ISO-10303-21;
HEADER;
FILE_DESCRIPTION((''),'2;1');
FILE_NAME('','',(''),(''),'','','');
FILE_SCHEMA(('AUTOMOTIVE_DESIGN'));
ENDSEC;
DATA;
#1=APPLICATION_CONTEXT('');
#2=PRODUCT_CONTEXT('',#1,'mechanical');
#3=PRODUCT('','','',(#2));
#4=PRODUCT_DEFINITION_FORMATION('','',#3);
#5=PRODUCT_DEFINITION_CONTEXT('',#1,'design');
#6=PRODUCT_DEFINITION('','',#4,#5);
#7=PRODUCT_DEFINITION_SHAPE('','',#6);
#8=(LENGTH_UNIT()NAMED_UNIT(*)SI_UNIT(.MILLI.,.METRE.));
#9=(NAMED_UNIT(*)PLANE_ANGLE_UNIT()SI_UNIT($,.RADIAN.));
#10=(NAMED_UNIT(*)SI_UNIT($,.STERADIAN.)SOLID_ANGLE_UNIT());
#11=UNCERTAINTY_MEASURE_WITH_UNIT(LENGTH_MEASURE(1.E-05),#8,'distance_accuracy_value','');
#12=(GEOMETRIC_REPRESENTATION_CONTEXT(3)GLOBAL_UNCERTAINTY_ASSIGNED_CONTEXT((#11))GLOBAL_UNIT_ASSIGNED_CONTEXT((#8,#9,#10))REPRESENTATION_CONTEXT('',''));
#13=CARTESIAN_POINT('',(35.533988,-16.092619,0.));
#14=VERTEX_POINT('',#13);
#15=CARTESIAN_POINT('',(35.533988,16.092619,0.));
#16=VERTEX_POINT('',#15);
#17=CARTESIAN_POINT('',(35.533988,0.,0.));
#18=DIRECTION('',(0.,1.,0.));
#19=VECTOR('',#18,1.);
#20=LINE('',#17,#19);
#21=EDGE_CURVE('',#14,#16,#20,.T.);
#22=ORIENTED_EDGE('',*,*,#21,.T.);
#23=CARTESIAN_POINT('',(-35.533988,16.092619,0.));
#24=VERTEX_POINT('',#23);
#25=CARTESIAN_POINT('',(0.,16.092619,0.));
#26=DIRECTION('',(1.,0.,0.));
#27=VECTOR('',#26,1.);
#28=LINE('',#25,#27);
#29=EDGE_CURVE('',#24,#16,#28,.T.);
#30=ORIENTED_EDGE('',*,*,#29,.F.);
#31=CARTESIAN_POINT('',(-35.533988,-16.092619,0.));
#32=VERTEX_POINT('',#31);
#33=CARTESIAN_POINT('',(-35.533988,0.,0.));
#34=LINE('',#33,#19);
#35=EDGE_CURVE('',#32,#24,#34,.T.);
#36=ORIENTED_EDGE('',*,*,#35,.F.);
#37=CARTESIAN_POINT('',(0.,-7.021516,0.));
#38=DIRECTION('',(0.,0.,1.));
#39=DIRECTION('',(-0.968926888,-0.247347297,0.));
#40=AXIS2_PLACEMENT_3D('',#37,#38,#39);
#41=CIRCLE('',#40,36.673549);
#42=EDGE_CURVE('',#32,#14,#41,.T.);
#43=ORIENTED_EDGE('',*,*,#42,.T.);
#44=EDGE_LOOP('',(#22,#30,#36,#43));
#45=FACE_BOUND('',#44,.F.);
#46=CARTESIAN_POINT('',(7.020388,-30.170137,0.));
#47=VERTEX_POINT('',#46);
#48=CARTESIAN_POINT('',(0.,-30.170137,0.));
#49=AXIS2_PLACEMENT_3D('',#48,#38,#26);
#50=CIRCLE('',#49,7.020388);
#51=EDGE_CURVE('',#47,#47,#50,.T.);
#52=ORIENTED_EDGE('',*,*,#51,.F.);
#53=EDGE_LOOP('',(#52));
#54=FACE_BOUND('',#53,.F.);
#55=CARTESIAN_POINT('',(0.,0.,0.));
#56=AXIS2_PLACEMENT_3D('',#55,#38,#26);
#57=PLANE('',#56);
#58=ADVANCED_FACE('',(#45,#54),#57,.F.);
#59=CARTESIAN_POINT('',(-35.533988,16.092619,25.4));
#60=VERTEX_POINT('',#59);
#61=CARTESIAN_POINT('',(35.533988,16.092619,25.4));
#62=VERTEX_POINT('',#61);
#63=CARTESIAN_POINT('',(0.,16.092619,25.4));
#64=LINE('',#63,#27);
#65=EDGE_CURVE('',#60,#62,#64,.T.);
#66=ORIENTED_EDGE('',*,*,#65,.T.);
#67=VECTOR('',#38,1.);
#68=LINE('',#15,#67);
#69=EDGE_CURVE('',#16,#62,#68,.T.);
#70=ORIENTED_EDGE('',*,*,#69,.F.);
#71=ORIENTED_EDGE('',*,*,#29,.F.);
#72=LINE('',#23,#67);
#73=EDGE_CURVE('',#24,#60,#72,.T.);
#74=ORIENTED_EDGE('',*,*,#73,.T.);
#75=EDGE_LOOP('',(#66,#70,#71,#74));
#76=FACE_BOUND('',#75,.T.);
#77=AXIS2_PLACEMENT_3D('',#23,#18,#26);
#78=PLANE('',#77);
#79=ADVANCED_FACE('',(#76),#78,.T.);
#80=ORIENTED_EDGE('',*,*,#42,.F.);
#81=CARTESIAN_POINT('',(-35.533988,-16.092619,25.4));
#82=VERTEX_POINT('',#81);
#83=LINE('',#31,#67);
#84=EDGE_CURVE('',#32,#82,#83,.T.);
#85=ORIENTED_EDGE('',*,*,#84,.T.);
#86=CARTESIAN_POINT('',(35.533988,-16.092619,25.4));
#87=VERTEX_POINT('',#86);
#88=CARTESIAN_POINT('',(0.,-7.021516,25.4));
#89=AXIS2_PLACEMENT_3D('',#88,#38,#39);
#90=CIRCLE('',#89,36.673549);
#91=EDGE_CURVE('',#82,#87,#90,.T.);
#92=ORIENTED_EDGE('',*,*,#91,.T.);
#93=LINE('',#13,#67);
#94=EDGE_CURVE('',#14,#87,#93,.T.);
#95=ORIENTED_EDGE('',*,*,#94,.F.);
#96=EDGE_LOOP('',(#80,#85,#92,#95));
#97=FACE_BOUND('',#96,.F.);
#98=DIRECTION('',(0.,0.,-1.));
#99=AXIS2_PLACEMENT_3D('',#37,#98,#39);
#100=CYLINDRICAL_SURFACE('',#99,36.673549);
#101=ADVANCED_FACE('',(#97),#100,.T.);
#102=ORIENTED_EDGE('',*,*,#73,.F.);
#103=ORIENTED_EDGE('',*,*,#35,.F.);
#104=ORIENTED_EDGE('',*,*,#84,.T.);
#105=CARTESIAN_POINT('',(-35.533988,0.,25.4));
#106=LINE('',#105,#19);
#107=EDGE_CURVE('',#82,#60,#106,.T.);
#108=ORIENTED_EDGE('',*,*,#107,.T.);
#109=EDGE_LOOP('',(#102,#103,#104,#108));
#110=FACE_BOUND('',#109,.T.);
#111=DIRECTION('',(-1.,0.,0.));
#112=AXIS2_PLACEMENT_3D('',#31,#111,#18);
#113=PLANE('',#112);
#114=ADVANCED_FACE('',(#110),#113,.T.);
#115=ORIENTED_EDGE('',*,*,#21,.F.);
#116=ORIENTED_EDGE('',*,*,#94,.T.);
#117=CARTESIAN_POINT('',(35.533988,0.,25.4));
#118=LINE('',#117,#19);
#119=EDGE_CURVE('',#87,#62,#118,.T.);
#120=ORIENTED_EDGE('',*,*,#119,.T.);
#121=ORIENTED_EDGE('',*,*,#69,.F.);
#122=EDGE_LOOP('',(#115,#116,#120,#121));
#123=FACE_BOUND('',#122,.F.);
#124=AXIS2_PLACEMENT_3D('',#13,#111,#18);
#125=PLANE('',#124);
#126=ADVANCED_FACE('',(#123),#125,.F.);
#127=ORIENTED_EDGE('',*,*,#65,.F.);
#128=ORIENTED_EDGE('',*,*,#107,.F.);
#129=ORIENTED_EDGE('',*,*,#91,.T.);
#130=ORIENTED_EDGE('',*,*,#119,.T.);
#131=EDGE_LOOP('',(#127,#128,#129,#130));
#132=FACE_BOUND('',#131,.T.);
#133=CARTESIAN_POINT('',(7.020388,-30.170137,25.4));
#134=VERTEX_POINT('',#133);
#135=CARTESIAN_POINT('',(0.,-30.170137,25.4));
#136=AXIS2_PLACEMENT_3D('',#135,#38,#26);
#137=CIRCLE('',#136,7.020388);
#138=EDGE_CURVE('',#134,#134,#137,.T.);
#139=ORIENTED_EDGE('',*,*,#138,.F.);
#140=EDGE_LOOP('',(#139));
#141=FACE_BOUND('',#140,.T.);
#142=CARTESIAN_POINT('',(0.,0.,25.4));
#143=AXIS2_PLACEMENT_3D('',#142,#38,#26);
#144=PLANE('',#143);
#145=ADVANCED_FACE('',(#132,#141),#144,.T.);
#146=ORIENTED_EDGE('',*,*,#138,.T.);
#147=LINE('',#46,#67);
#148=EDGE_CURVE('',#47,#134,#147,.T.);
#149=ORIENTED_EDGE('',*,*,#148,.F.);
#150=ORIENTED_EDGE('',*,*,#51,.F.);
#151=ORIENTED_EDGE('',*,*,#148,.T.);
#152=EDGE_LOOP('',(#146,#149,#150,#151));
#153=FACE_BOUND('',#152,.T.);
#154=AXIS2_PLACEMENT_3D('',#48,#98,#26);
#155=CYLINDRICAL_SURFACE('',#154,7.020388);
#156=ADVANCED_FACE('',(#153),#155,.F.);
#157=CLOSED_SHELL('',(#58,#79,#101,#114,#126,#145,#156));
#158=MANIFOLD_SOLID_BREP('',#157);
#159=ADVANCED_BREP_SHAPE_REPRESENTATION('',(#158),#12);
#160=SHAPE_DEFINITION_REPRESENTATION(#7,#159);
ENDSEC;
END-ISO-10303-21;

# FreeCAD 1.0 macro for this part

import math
import FreeCAD as App
import Part
import Sketcher
Q = App.Units.Quantity

doc = App.newDocument("Part")
body = doc.addObject("PartDesign::Body", "Body")

sketch1 = doc.addObject("Sketcher::SketchObject", "Sketch")
body.addObject(sketch1)
sketch1.AttachmentSupport = (doc.XY_Plane, [""])
sketch1.MapMode = "FlatFace"
sketch1.addGeometry([
    Part.LineSegment(App.Vector(-36, 16, 0), App.Vector(-36, -16, 0)),
    Part.ArcOfCircle(Part.Circle(App.Vector(0, -7, 0), App.Vector(0, 0, 1), 37), math.radians(-166), math.radians(-14)),
    Part.LineSegment(App.Vector(36, -16, 0), App.Vector(36, 16, 0)),
    Part.LineSegment(App.Vector(36, 16, 0), App.Vector(-36, 16, 0)),
    Part.Circle(App.Vector(0, -30, 0), App.Vector(0, 0, 1), 7),
], False)
sketch1.addConstraint([
    Sketcher.Constraint("Coincident", 0, 2, 1, 1),
    Sketcher.Constraint("Coincident", 1, 2, 2, 1),
    Sketcher.Constraint("Coincident", 2, 2, 3, 1),
    Sketcher.Constraint("Coincident", 3, 2, 0, 1),
    Sketcher.Constraint("Vertical", 0),
    Sketcher.Constraint("Vertical", 2),
    Sketcher.Constraint("Horizontal", 3),
    Sketcher.Constraint("Symmetric", 0, 2, 2, 2, -1, 1),
    Sketcher.Constraint("PointOnObject", 1, 3, -2),
    Sketcher.Constraint("PointOnObject", 4, 3, -2),
    Sketcher.Constraint("Radius", 1, Q("36.673549 mm")),
    Sketcher.Constraint("Diameter", 4, Q("14.040776 mm")),
    Sketcher.Constraint("DistanceX", 3, 2, 3, 1, Q("71.067976 mm")),
    Sketcher.Constraint("DistanceY", 0, 2, 0, 1, Q("32.185238 mm")),
    Sketcher.Constraint("DistanceY", 4, 3, 1, 3, Q("23.148621 mm")),
])
pad1 = doc.addObject("PartDesign::Pad", "Pad")
body.addObject(pad1)
pad1.Profile = sketch1
pad1.Length = Q("1 in")

doc.recompute()
